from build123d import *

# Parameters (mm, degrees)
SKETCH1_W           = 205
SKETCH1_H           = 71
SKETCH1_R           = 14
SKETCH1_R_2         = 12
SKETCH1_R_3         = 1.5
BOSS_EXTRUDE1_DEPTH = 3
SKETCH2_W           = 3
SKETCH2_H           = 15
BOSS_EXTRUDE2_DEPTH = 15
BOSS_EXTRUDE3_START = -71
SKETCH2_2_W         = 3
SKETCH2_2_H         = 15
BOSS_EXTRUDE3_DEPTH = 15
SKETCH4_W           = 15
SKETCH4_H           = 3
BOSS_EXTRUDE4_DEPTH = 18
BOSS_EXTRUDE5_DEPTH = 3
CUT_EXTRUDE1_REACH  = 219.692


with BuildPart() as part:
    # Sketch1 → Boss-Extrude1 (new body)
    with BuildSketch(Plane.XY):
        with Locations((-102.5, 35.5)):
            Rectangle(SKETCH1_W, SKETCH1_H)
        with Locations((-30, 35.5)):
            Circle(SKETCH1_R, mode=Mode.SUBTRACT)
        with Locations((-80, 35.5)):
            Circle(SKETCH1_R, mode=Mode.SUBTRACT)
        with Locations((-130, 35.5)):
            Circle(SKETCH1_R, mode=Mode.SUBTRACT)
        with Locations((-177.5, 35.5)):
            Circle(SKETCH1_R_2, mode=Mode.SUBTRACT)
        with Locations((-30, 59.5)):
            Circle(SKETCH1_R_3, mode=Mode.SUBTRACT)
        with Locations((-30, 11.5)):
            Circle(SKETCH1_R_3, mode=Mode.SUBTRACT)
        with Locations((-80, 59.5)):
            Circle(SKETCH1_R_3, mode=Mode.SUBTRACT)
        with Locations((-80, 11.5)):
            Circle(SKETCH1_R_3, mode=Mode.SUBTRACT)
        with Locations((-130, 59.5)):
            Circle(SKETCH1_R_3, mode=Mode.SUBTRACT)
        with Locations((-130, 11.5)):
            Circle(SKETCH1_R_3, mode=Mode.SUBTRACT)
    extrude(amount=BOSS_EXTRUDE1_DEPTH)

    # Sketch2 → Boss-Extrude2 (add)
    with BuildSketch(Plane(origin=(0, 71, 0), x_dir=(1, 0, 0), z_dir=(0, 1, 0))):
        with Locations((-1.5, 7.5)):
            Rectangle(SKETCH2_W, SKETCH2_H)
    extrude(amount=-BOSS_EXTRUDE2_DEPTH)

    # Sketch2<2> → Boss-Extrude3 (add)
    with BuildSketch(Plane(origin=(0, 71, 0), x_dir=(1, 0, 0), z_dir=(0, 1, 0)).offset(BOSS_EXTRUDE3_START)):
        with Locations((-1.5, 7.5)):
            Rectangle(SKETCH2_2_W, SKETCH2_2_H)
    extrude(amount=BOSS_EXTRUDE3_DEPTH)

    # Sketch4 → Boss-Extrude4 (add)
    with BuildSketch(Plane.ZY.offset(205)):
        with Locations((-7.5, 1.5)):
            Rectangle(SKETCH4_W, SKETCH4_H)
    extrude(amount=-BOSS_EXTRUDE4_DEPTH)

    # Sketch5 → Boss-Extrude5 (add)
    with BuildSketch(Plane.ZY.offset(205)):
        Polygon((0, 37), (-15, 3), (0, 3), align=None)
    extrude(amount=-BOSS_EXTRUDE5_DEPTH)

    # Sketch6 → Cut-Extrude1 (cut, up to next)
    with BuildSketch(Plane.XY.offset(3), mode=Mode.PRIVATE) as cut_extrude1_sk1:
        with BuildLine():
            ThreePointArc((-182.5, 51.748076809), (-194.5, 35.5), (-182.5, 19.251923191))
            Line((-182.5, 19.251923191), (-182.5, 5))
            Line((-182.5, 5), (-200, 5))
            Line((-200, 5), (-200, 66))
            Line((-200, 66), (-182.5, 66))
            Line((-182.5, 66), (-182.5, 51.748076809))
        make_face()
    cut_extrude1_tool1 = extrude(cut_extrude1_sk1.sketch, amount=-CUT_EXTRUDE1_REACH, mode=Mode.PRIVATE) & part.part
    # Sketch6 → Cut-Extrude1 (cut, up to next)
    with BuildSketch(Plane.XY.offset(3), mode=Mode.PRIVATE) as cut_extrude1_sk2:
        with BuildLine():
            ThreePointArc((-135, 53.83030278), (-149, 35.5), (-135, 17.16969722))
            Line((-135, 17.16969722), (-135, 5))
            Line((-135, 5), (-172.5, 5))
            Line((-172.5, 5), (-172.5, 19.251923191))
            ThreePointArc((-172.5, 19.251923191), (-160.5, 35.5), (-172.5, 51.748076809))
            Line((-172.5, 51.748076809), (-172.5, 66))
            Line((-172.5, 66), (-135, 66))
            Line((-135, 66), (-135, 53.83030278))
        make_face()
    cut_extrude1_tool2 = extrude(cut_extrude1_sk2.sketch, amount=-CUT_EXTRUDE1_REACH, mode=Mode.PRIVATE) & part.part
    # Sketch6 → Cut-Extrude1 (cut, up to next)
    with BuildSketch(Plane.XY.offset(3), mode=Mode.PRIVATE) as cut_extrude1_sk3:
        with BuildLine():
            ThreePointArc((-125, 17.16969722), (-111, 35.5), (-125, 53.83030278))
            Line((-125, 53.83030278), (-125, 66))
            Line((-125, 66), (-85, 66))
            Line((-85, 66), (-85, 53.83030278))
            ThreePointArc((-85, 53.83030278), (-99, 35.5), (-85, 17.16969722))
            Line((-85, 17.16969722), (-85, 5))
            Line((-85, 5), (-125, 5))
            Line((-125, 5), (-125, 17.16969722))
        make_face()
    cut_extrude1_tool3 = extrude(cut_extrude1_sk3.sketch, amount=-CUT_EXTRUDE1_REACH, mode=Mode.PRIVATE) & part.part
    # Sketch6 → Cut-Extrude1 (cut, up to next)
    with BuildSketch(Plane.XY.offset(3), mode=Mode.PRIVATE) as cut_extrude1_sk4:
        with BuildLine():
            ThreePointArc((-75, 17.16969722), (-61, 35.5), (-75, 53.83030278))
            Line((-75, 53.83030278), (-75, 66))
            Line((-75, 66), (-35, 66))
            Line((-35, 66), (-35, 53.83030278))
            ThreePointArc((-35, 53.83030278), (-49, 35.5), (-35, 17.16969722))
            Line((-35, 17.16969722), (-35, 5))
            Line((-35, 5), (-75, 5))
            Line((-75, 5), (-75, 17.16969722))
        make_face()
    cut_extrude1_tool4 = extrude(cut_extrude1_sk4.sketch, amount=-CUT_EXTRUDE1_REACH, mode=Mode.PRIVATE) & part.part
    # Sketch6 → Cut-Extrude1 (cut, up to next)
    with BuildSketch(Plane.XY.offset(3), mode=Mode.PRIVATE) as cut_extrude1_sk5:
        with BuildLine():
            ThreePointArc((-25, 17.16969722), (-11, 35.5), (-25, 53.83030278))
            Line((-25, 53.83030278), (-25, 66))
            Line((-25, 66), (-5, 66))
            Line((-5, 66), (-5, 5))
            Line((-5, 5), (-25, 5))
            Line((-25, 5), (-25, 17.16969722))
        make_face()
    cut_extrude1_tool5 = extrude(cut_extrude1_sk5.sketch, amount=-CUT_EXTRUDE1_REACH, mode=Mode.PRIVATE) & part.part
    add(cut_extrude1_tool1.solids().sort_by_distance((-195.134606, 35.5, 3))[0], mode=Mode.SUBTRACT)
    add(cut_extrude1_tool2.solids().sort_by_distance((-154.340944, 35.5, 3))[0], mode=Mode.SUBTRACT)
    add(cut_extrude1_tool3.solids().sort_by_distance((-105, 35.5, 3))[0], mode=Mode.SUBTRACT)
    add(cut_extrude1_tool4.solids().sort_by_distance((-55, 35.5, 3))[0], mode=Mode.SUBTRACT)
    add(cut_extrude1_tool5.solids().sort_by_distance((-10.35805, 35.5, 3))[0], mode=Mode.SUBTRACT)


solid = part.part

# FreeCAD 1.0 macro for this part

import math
import FreeCAD as App
import Part
import Sketcher

V = App.Vector

doc = App.newDocument("Part")
body = doc.addObject("PartDesign::Body", "Body")

# Sketch on XY plane
sketch1 = body.newObject("Sketcher::SketchObject", "Sketch")
sketch1.AttachmentSupport = (doc.getObject("XY_Plane"), [""])
sketch1.MapMode = "FlatFace"
sketch1.addGeometry([
    Part.LineSegment(V(-205, 71, 0), V(-205, 0, 0)),  # 0
    Part.LineSegment(V(-205, 0, 0), V(0, 0, 0)),  # 1
    Part.LineSegment(V(0, 0, 0), V(0, 71, 0)),  # 2
    Part.LineSegment(V(0, 71, 0), V(-205, 71, 0)),  # 3
    Part.Circle(V(-130, 11.5, 0), V(0, 0, 1), 1.5),  # 4
    Part.Circle(V(-80, 11.5, 0), V(0, 0, 1), 1.5),  # 5
    Part.Circle(V(-30, 11.5, 0), V(0, 0, 1), 1.5),  # 6
    Part.Circle(V(-177.5, 35.5, 0), V(0, 0, 1), 12),  # 7
    Part.Circle(V(-130, 35.5, 0), V(0, 0, 1), 14),  # 8
    Part.Circle(V(-130, 59.5, 0), V(0, 0, 1), 1.5),  # 9
    Part.Circle(V(-80, 35.5, 0), V(0, 0, 1), 14),  # 10
    Part.Circle(V(-30, 35.5, 0), V(0, 0, 1), 14),  # 11
    Part.Circle(V(-80, 59.5, 0), V(0, 0, 1), 1.5),  # 12
    Part.Circle(V(-30, 59.5, 0), V(0, 0, 1), 1.5),  # 13
], False)
sketch1.addConstraint([
    Sketcher.Constraint("Coincident", 0, 2, 1, 1),
    Sketcher.Constraint("Coincident", 1, 2, 2, 1),
    Sketcher.Constraint("Coincident", 2, 2, 3, 1),
    Sketcher.Constraint("Coincident", 3, 2, 0, 1),
    Sketcher.Constraint("Vertical", 0),
    Sketcher.Constraint("Horizontal", 1),
    Sketcher.Constraint("Vertical", 2),
    Sketcher.Constraint("Horizontal", 3),
    Sketcher.Constraint("Coincident", 1, 2, -1, 1),
    Sketcher.Constraint("Equal", 4, 5),
    Sketcher.Constraint("Equal", 5, 6),
    Sketcher.Constraint("Equal", 6, 9),
    Sketcher.Constraint("Equal", 8, 10),
    Sketcher.Constraint("Equal", 10, 11),
    Sketcher.Constraint("Equal", 9, 12),
    Sketcher.Constraint("Equal", 12, 13),
    Sketcher.Constraint("Horizontal", 4, 3, 5, 3),
    Sketcher.Constraint("Horizontal", 5, 3, 6, 3),
    Sketcher.Constraint("Horizontal", 7, 3, 8, 3),
    Sketcher.Constraint("Horizontal", 8, 3, 10, 3),
    Sketcher.Constraint("Horizontal", 10, 3, 11, 3),
    Sketcher.Constraint("Horizontal", 9, 3, 12, 3),
    Sketcher.Constraint("Horizontal", 12, 3, 13, 3),
    Sketcher.Constraint("Vertical", 4, 3, 8, 3),
    Sketcher.Constraint("Vertical", 8, 3, 9, 3),
    Sketcher.Constraint("Vertical", 5, 3, 10, 3),
    Sketcher.Constraint("Vertical", 6, 3, 11, 3),
    Sketcher.Constraint("Vertical", 10, 3, 12, 3),
    Sketcher.Constraint("Vertical", 11, 3, 13, 3),
    Sketcher.Constraint("Diameter", 4, 3.0),
    Sketcher.Constraint("Diameter", 7, 24.0),
    Sketcher.Constraint("Diameter", 8, 28.0),
    Sketcher.Constraint("DistanceX", 1, 1, 1, 2, 205.0),
    Sketcher.Constraint("DistanceY", 0, 2, 0, 1, 71.0),
    Sketcher.Constraint("DistanceX", 4, 3, -1, 1, 130.0),
    Sketcher.Constraint("DistanceX", 5, 3, -1, 1, 80.0),
    Sketcher.Constraint("DistanceX", 6, 3, -1, 1, 30.0),
    Sketcher.Constraint("DistanceY", 4, 3, 7, 3, 24.0),
    Sketcher.Constraint("DistanceY", 8, 3, 9, 3, 24.0),
    Sketcher.Constraint("DistanceY", -1, 1, 4, 3, 11.5),
    Sketcher.Constraint("DistanceX", 7, 3, -1, 1, 177.5),
])
pad1 = body.newObject("PartDesign::Pad", "Pad")
pad1.Profile = sketch1
pad1.Length = 3

# Sketch on XZ plane
sketch2 = body.newObject("Sketcher::SketchObject", "Sketch001")
sketch2.AttachmentSupport = (doc.getObject("XZ_Plane"), [""])
sketch2.MapMode = "FlatFace"
sketch2.AttachmentOffset = App.Placement(V(0, 0, -71), App.Rotation())
sketch2.addGeometry([
    Part.LineSegment(V(-3, -15, 0), V(-3, 0, 0)),
    Part.LineSegment(V(-3, 0, 0), V(0, 0, 0)),
    Part.LineSegment(V(0, 0, 0), V(0, -15, 0)),
    Part.LineSegment(V(0, -15, 0), V(-3, -15, 0)),
], False)
sketch2.addConstraint([
    Sketcher.Constraint("Coincident", 0, 2, 1, 1),
    Sketcher.Constraint("Coincident", 1, 2, 2, 1),
    Sketcher.Constraint("Coincident", 2, 2, 3, 1),
    Sketcher.Constraint("Coincident", 3, 2, 0, 1),
    Sketcher.Constraint("Vertical", 0),
    Sketcher.Constraint("Horizontal", 1),
    Sketcher.Constraint("Vertical", 2),
    Sketcher.Constraint("Horizontal", 3),
    Sketcher.Constraint("Coincident", 1, 2, -1, 1),
    Sketcher.Constraint("DistanceX", 1, 1, 1, 2, 3.0),
    Sketcher.Constraint("DistanceY", 0, 1, 0, 2, 15.0),
])
pad2 = body.newObject("PartDesign::Pad", "Pad001")
pad2.Profile = sketch2
pad2.Length = 15

# Sketch on XZ plane
sketch3 = body.newObject("Sketcher::SketchObject", "Sketch002")
sketch3.AttachmentSupport = (doc.getObject("XZ_Plane"), [""])
sketch3.MapMode = "FlatFace"
sketch3.addGeometry([
    Part.LineSegment(V(-3, -15, 0), V(-3, 0, 0)),
    Part.LineSegment(V(-3, 0, 0), V(0, 0, 0)),
    Part.LineSegment(V(0, 0, 0), V(0, -15, 0)),
    Part.LineSegment(V(0, -15, 0), V(-3, -15, 0)),
], False)
sketch3.addConstraint([
    Sketcher.Constraint("Coincident", 0, 2, 1, 1),
    Sketcher.Constraint("Coincident", 1, 2, 2, 1),
    Sketcher.Constraint("Coincident", 2, 2, 3, 1),
    Sketcher.Constraint("Coincident", 3, 2, 0, 1),
    Sketcher.Constraint("Vertical", 0),
    Sketcher.Constraint("Horizontal", 1),
    Sketcher.Constraint("Vertical", 2),
    Sketcher.Constraint("Horizontal", 3),
    Sketcher.Constraint("Coincident", 1, 2, -1, 1),
    Sketcher.Constraint("DistanceX", 1, 1, 1, 2, 3.0),
    Sketcher.Constraint("DistanceY", 0, 1, 0, 2, 15.0),
])
pad3 = body.newObject("PartDesign::Pad", "Pad002")
pad3.Profile = sketch3
pad3.Length = 15
pad3.Reversed = True

# Sketch on YZ plane
sketch4 = body.newObject("Sketcher::SketchObject", "Sketch003")
sketch4.AttachmentSupport = (doc.getObject("YZ_Plane"), [""])
sketch4.MapMode = "FlatFace"
sketch4.AttachmentOffset = App.Placement(V(0, 0, -205), App.Rotation())
sketch4.addGeometry([
    Part.LineSegment(V(3, -15, 0), V(0, -15, 0)),
    Part.LineSegment(V(0, -15, 0), V(0, 0, 0)),
    Part.LineSegment(V(0, 0, 0), V(3, 0, 0)),
    Part.LineSegment(V(3, 0, 0), V(3, -15, 0)),
], False)
sketch4.addConstraint([
    Sketcher.Constraint("Coincident", 0, 2, 1, 1),
    Sketcher.Constraint("Coincident", 1, 2, 2, 1),
    Sketcher.Constraint("Coincident", 2, 2, 3, 1),
    Sketcher.Constraint("Coincident", 3, 2, 0, 1),
    Sketcher.Constraint("Horizontal", 0),
    Sketcher.Constraint("Vertical", 1),
    Sketcher.Constraint("Horizontal", 2),
    Sketcher.Constraint("Vertical", 3),
    Sketcher.Constraint("Coincident", 1, 2, -1, 1),
    Sketcher.Constraint("DistanceX", 0, 2, 0, 1, 3.0),
    Sketcher.Constraint("DistanceY", 1, 1, 1, 2, 15.0),
])
pad4 = body.newObject("PartDesign::Pad", "Pad003")
pad4.Profile = sketch4
pad4.Length = 18

# Sketch on YZ plane
sketch5 = body.newObject("Sketcher::SketchObject", "Sketch004")
sketch5.AttachmentSupport = (doc.getObject("YZ_Plane"), [""])
sketch5.MapMode = "FlatFace"
sketch5.AttachmentOffset = App.Placement(V(0, 0, -205), App.Rotation())
sketch5.addGeometry([
    Part.LineSegment(V(37, 0, 0), V(3, -15, 0)),
    Part.LineSegment(V(3, -15, 0), V(3, 0, 0)),
    Part.LineSegment(V(3, 0, 0), V(37, 0, 0)),
], False)
sketch5.addConstraint([
    Sketcher.Constraint("Coincident", 0, 2, 1, 1),
    Sketcher.Constraint("Coincident", 1, 2, 2, 1),
    Sketcher.Constraint("Coincident", 2, 2, 0, 1),
    Sketcher.Constraint("Vertical", 1),
    Sketcher.Constraint("Horizontal", 2),
    Sketcher.Constraint("PointOnObject", 1, 2, -1),
    Sketcher.Constraint("DistanceX", 2, 1, 2, 2, 34.0),
    Sketcher.Constraint("DistanceY", 1, 1, 1, 2, 15.0),
    Sketcher.Constraint("DistanceX", -1, 1, 0, 2, 3.0),
])
pad5 = body.newObject("PartDesign::Pad", "Pad004")
pad5.Profile = sketch5
pad5.Length = 3

# Sketch on XY plane
sketch6 = body.newObject("Sketcher::SketchObject", "Sketch005")
sketch6.AttachmentSupport = (doc.getObject("XY_Plane"), [""])
sketch6.MapMode = "FlatFace"
sketch6.AttachmentOffset = App.Placement(V(0, 0, 3), App.Rotation())
sketch6.addGeometry([
    Part.ArcOfCircle(Part.Circle(V(-178, 36, 0), V(0, 0, 1), 17), math.radians(107), math.radians(253)),  # 0
    Part.LineSegment(V(-182, 52, 0), V(-182, 66, 0)),  # 1
    Part.LineSegment(V(-182, 66, 0), V(-200, 66, 0)),  # 2
    Part.LineSegment(V(-200, 66, 0), V(-200, 5, 0)),  # 3
    Part.LineSegment(V(-200, 5, 0), V(-182, 5, 0)),  # 4
    Part.LineSegment(V(-182, 5, 0), V(-182, 19, 0)),  # 5
], False)
sketch6.addConstraint([
    Sketcher.Constraint("Coincident", 0, 1, 1, 1),
    Sketcher.Constraint("Coincident", 1, 2, 2, 1),
    Sketcher.Constraint("Coincident", 2, 2, 3, 1),
    Sketcher.Constraint("Coincident", 3, 2, 4, 1),
    Sketcher.Constraint("Coincident", 4, 2, 5, 1),
    Sketcher.Constraint("Coincident", 5, 2, 0, 2),
    Sketcher.Constraint("Vertical", 1),
    Sketcher.Constraint("Horizontal", 2),
    Sketcher.Constraint("Vertical", 3),
    Sketcher.Constraint("Horizontal", 4),
    Sketcher.Constraint("Vertical", 5),
    Sketcher.Constraint("Vertical", 1, 2, 4, 2),
    Sketcher.Constraint("Equal", 1, 5),
    Sketcher.Constraint("Radius", 0, 17.0),
    Sketcher.Constraint("DistanceY", 3, 2, 3, 1, 61.0),
    Sketcher.Constraint("DistanceX", 2, 2, 2, 1, 17.5),
    Sketcher.Constraint("DistanceY", -1, 1, 1, 2, 66.0),
    Sketcher.Constraint("DistanceX", 2, 2, -1, 1, 200.0),
    Sketcher.Constraint("DistanceX", 0, 1, 0, 3, 5.0),
])
pocket1 = body.newObject("PartDesign::Pocket", "Pocket")
pocket1.Profile = sketch6
pocket1.Type = "UpToFirst"

# Sketch on XY plane
sketch7 = body.newObject("Sketcher::SketchObject", "Sketch006")
sketch7.AttachmentSupport = (doc.getObject("XY_Plane"), [""])
sketch7.MapMode = "FlatFace"
sketch7.AttachmentOffset = App.Placement(V(0, 0, 3), App.Rotation())
sketch7.addGeometry([
    Part.ArcOfCircle(Part.Circle(V(-130, 36, 0), V(0, 0, 1), 19), math.radians(105), math.radians(255)),  # 0
    Part.LineSegment(V(-135, 54, 0), V(-135, 66, 0)),  # 1
    Part.LineSegment(V(-135, 66, 0), V(-172, 66, 0)),  # 2
    Part.LineSegment(V(-172, 66, 0), V(-172, 52, 0)),  # 3
    Part.ArcOfCircle(Part.Circle(V(-178, 36, 0), V(0, 0, 1), 17), math.radians(-73), math.radians(73)),  # 4
    Part.LineSegment(V(-172, 19, 0), V(-172, 5, 0)),  # 5
    Part.LineSegment(V(-172, 5, 0), V(-135, 5, 0)),  # 6
    Part.LineSegment(V(-135, 5, 0), V(-135, 17, 0)),  # 7
], False)
sketch7.addConstraint([
    Sketcher.Constraint("Coincident", 0, 1, 1, 1),
    Sketcher.Constraint("Coincident", 1, 2, 2, 1),
    Sketcher.Constraint("Coincident", 2, 2, 3, 1),
    Sketcher.Constraint("Coincident", 3, 2, 4, 2),
    Sketcher.Constraint("Coincident", 4, 1, 5, 1),
    Sketcher.Constraint("Coincident", 5, 2, 6, 1),
    Sketcher.Constraint("Coincident", 6, 2, 7, 1),
    Sketcher.Constraint("Coincident", 7, 2, 0, 2),
    Sketcher.Constraint("Vertical", 1),
    Sketcher.Constraint("Horizontal", 2),
    Sketcher.Constraint("Vertical", 3),
    Sketcher.Constraint("Vertical", 5),
    Sketcher.Constraint("Horizontal", 6),
    Sketcher.Constraint("Vertical", 7),
    Sketcher.Constraint("Horizontal", 0, 3, 4, 3),
    Sketcher.Constraint("Vertical", 3, 2, 4, 1),
    Sketcher.Constraint("Vertical", 1, 2, 6, 2),
    Sketcher.Constraint("Equal", 3, 5),
    Sketcher.Constraint("Radius", 0, 19.0),
    Sketcher.Constraint("Radius", 4, 17.0),
    Sketcher.Constraint("DistanceX", 2, 2, 2, 1, 37.5),
    Sketcher.Constraint("DistanceX", 0, 3, -1, 1, 130.0),
    Sketcher.Constraint("DistanceX", 0, 1, -1, 1, 135.0),
    Sketcher.Constraint("DistanceY", -1, 1, 1, 2, 66.0),
    Sketcher.Constraint("DistanceY", -1, 1, 5, 2, 5.0),
    Sketcher.Constraint("DistanceX", 4, 3, 2, 2, 5.0),
])
pocket2 = body.newObject("PartDesign::Pocket", "Pocket001")
pocket2.Profile = sketch7
pocket2.Type = "UpToFirst"

# Sketch on XY plane
sketch8 = body.newObject("Sketcher::SketchObject", "Sketch007")
sketch8.AttachmentSupport = (doc.getObject("XY_Plane"), [""])
sketch8.MapMode = "FlatFace"
sketch8.AttachmentOffset = App.Placement(V(0, 0, 3), App.Rotation())
sketch8.addGeometry([
    Part.ArcOfCircle(Part.Circle(V(-130, 36, 0), V(0, 0, 1), 19), math.radians(-75), math.radians(75)),  # 0
    Part.LineSegment(V(-125, 17, 0), V(-125, 5, 0)),  # 1
    Part.LineSegment(V(-125, 5, 0), V(-85, 5, 0)),  # 2
    Part.LineSegment(V(-85, 5, 0), V(-85, 17, 0)),  # 3
    Part.ArcOfCircle(Part.Circle(V(-80, 36, 0), V(0, 0, 1), 19), math.radians(105), math.radians(255)),  # 4
    Part.LineSegment(V(-85, 54, 0), V(-85, 66, 0)),  # 5
    Part.LineSegment(V(-85, 66, 0), V(-125, 66, 0)),  # 6
    Part.LineSegment(V(-125, 66, 0), V(-125, 54, 0)),  # 7
], False)
sketch8.addConstraint([
    Sketcher.Constraint("Coincident", 0, 1, 1, 1),
    Sketcher.Constraint("Coincident", 1, 2, 2, 1),
    Sketcher.Constraint("Coincident", 2, 2, 3, 1),
    Sketcher.Constraint("Coincident", 3, 2, 4, 2),
    Sketcher.Constraint("Coincident", 4, 1, 5, 1),
    Sketcher.Constraint("Coincident", 5, 2, 6, 1),
    Sketcher.Constraint("Coincident", 6, 2, 7, 1),
    Sketcher.Constraint("Coincident", 7, 2, 0, 2),
    Sketcher.Constraint("Vertical", 1),
    Sketcher.Constraint("Horizontal", 2),
    Sketcher.Constraint("Vertical", 3),
    Sketcher.Constraint("Vertical", 5),
    Sketcher.Constraint("Horizontal", 6),
    Sketcher.Constraint("Vertical", 7),
    Sketcher.Constraint("Equal", 0, 4),
    Sketcher.Constraint("Horizontal", 0, 3, 4, 3),
    Sketcher.Constraint("Horizontal", 0, 1, 3, 2),
    Sketcher.Constraint("Horizontal", 4, 1, 7, 2),
    Sketcher.Constraint("Vertical", 3, 2, 4, 1),
    Sketcher.Constraint("Equal", 3, 5),
    Sketcher.Constraint("Radius", 0, 19.0),
    Sketcher.Constraint("DistanceX", 2, 1, 2, 2, 40.0),
    Sketcher.Constraint("DistanceX", 0, 3, -1, 1, 130.0),
    Sketcher.Constraint("DistanceX", 4, 3, -1, 1, 80.0),
    Sketcher.Constraint("DistanceY", -1, 1, 1, 2, 5.0),
    Sketcher.Constraint("DistanceY", -1, 1, 5, 2, 66.0),
])
pocket3 = body.newObject("PartDesign::Pocket", "Pocket002")
pocket3.Profile = sketch8
pocket3.Type = "UpToFirst"

# Sketch on XY plane
sketch9 = body.newObject("Sketcher::SketchObject", "Sketch008")
sketch9.AttachmentSupport = (doc.getObject("XY_Plane"), [""])
sketch9.MapMode = "FlatFace"
sketch9.AttachmentOffset = App.Placement(V(0, 0, 3), App.Rotation())
sketch9.addGeometry([
    Part.ArcOfCircle(Part.Circle(V(-80, 36, 0), V(0, 0, 1), 19), math.radians(-75), math.radians(75)),  # 0
    Part.LineSegment(V(-75, 17, 0), V(-75, 5, 0)),  # 1
    Part.LineSegment(V(-75, 5, 0), V(-35, 5, 0)),  # 2
    Part.LineSegment(V(-35, 5, 0), V(-35, 17, 0)),  # 3
    Part.ArcOfCircle(Part.Circle(V(-30, 36, 0), V(0, 0, 1), 19), math.radians(105), math.radians(255)),  # 4
    Part.LineSegment(V(-35, 54, 0), V(-35, 66, 0)),  # 5
    Part.LineSegment(V(-35, 66, 0), V(-75, 66, 0)),  # 6
    Part.LineSegment(V(-75, 66, 0), V(-75, 54, 0)),  # 7
], False)
sketch9.addConstraint([
    Sketcher.Constraint("Coincident", 0, 1, 1, 1),
    Sketcher.Constraint("Coincident", 1, 2, 2, 1),
    Sketcher.Constraint("Coincident", 2, 2, 3, 1),
    Sketcher.Constraint("Coincident", 3, 2, 4, 2),
    Sketcher.Constraint("Coincident", 4, 1, 5, 1),
    Sketcher.Constraint("Coincident", 5, 2, 6, 1),
    Sketcher.Constraint("Coincident", 6, 2, 7, 1),
    Sketcher.Constraint("Coincident", 7, 2, 0, 2),
    Sketcher.Constraint("Vertical", 1),
    Sketcher.Constraint("Horizontal", 2),
    Sketcher.Constraint("Vertical", 3),
    Sketcher.Constraint("Vertical", 5),
    Sketcher.Constraint("Horizontal", 6),
    Sketcher.Constraint("Vertical", 7),
    Sketcher.Constraint("Equal", 0, 4),
    Sketcher.Constraint("Horizontal", 0, 3, 4, 3),
    Sketcher.Constraint("Horizontal", 0, 1, 3, 2),
    Sketcher.Constraint("Horizontal", 4, 1, 7, 2),
    Sketcher.Constraint("Vertical", 3, 2, 4, 1),
    Sketcher.Constraint("Equal", 3, 5),
    Sketcher.Constraint("Radius", 0, 19.0),
    Sketcher.Constraint("DistanceX", 2, 1, 2, 2, 40.0),
    Sketcher.Constraint("DistanceX", 0, 3, -1, 1, 80.0),
    Sketcher.Constraint("DistanceX", 4, 3, -1, 1, 30.0),
    Sketcher.Constraint("DistanceY", -1, 1, 1, 2, 5.0),
    Sketcher.Constraint("DistanceY", -1, 1, 5, 2, 66.0),
])
pocket4 = body.newObject("PartDesign::Pocket", "Pocket003")
pocket4.Profile = sketch9
pocket4.Type = "UpToFirst"

# Sketch on XY plane
sketch10 = body.newObject("Sketcher::SketchObject", "Sketch009")
sketch10.AttachmentSupport = (doc.getObject("XY_Plane"), [""])
sketch10.MapMode = "FlatFace"
sketch10.AttachmentOffset = App.Placement(V(0, 0, 3), App.Rotation())
sketch10.addGeometry([
    Part.ArcOfCircle(Part.Circle(V(-30, 36, 0), V(0, 0, 1), 19), math.radians(-75), math.radians(75)),  # 0
    Part.LineSegment(V(-25, 17, 0), V(-25, 5, 0)),  # 1
    Part.LineSegment(V(-25, 5, 0), V(-5, 5, 0)),  # 2
    Part.LineSegment(V(-5, 5, 0), V(-5, 66, 0)),  # 3
    Part.LineSegment(V(-5, 66, 0), V(-25, 66, 0)),  # 4
    Part.LineSegment(V(-25, 66, 0), V(-25, 54, 0)),  # 5
], False)
sketch10.addConstraint([
    Sketcher.Constraint("Coincident", 0, 1, 1, 1),
    Sketcher.Constraint("Coincident", 1, 2, 2, 1),
    Sketcher.Constraint("Coincident", 2, 2, 3, 1),
    Sketcher.Constraint("Coincident", 3, 2, 4, 1),
    Sketcher.Constraint("Coincident", 4, 2, 5, 1),
    Sketcher.Constraint("Coincident", 5, 2, 0, 2),
    Sketcher.Constraint("Vertical", 1),
    Sketcher.Constraint("Horizontal", 2),
    Sketcher.Constraint("Vertical", 3),
    Sketcher.Constraint("Horizontal", 4),
    Sketcher.Constraint("Vertical", 5),
    Sketcher.Constraint("Vertical", 1, 2, 4, 2),
    Sketcher.Constraint("Equal", 1, 5),
    Sketcher.Constraint("Radius", 0, 19.0),
    Sketcher.Constraint("DistanceX", 2, 1, 2, 2, 20.0),
    Sketcher.Constraint("DistanceY", 3, 1, 3, 2, 61.0),
    Sketcher.Constraint("DistanceX", 0, 3, -1, 1, 30.0),
    Sketcher.Constraint("DistanceX", 0, 1, -1, 1, 25.0),
    Sketcher.Constraint("DistanceY", -1, 1, 1, 2, 5.0),
])
pocket5 = body.newObject("PartDesign::Pocket", "Pocket004")
pocket5.Profile = sketch10
pocket5.Type = "UpToFirst"

doc.recompute()
